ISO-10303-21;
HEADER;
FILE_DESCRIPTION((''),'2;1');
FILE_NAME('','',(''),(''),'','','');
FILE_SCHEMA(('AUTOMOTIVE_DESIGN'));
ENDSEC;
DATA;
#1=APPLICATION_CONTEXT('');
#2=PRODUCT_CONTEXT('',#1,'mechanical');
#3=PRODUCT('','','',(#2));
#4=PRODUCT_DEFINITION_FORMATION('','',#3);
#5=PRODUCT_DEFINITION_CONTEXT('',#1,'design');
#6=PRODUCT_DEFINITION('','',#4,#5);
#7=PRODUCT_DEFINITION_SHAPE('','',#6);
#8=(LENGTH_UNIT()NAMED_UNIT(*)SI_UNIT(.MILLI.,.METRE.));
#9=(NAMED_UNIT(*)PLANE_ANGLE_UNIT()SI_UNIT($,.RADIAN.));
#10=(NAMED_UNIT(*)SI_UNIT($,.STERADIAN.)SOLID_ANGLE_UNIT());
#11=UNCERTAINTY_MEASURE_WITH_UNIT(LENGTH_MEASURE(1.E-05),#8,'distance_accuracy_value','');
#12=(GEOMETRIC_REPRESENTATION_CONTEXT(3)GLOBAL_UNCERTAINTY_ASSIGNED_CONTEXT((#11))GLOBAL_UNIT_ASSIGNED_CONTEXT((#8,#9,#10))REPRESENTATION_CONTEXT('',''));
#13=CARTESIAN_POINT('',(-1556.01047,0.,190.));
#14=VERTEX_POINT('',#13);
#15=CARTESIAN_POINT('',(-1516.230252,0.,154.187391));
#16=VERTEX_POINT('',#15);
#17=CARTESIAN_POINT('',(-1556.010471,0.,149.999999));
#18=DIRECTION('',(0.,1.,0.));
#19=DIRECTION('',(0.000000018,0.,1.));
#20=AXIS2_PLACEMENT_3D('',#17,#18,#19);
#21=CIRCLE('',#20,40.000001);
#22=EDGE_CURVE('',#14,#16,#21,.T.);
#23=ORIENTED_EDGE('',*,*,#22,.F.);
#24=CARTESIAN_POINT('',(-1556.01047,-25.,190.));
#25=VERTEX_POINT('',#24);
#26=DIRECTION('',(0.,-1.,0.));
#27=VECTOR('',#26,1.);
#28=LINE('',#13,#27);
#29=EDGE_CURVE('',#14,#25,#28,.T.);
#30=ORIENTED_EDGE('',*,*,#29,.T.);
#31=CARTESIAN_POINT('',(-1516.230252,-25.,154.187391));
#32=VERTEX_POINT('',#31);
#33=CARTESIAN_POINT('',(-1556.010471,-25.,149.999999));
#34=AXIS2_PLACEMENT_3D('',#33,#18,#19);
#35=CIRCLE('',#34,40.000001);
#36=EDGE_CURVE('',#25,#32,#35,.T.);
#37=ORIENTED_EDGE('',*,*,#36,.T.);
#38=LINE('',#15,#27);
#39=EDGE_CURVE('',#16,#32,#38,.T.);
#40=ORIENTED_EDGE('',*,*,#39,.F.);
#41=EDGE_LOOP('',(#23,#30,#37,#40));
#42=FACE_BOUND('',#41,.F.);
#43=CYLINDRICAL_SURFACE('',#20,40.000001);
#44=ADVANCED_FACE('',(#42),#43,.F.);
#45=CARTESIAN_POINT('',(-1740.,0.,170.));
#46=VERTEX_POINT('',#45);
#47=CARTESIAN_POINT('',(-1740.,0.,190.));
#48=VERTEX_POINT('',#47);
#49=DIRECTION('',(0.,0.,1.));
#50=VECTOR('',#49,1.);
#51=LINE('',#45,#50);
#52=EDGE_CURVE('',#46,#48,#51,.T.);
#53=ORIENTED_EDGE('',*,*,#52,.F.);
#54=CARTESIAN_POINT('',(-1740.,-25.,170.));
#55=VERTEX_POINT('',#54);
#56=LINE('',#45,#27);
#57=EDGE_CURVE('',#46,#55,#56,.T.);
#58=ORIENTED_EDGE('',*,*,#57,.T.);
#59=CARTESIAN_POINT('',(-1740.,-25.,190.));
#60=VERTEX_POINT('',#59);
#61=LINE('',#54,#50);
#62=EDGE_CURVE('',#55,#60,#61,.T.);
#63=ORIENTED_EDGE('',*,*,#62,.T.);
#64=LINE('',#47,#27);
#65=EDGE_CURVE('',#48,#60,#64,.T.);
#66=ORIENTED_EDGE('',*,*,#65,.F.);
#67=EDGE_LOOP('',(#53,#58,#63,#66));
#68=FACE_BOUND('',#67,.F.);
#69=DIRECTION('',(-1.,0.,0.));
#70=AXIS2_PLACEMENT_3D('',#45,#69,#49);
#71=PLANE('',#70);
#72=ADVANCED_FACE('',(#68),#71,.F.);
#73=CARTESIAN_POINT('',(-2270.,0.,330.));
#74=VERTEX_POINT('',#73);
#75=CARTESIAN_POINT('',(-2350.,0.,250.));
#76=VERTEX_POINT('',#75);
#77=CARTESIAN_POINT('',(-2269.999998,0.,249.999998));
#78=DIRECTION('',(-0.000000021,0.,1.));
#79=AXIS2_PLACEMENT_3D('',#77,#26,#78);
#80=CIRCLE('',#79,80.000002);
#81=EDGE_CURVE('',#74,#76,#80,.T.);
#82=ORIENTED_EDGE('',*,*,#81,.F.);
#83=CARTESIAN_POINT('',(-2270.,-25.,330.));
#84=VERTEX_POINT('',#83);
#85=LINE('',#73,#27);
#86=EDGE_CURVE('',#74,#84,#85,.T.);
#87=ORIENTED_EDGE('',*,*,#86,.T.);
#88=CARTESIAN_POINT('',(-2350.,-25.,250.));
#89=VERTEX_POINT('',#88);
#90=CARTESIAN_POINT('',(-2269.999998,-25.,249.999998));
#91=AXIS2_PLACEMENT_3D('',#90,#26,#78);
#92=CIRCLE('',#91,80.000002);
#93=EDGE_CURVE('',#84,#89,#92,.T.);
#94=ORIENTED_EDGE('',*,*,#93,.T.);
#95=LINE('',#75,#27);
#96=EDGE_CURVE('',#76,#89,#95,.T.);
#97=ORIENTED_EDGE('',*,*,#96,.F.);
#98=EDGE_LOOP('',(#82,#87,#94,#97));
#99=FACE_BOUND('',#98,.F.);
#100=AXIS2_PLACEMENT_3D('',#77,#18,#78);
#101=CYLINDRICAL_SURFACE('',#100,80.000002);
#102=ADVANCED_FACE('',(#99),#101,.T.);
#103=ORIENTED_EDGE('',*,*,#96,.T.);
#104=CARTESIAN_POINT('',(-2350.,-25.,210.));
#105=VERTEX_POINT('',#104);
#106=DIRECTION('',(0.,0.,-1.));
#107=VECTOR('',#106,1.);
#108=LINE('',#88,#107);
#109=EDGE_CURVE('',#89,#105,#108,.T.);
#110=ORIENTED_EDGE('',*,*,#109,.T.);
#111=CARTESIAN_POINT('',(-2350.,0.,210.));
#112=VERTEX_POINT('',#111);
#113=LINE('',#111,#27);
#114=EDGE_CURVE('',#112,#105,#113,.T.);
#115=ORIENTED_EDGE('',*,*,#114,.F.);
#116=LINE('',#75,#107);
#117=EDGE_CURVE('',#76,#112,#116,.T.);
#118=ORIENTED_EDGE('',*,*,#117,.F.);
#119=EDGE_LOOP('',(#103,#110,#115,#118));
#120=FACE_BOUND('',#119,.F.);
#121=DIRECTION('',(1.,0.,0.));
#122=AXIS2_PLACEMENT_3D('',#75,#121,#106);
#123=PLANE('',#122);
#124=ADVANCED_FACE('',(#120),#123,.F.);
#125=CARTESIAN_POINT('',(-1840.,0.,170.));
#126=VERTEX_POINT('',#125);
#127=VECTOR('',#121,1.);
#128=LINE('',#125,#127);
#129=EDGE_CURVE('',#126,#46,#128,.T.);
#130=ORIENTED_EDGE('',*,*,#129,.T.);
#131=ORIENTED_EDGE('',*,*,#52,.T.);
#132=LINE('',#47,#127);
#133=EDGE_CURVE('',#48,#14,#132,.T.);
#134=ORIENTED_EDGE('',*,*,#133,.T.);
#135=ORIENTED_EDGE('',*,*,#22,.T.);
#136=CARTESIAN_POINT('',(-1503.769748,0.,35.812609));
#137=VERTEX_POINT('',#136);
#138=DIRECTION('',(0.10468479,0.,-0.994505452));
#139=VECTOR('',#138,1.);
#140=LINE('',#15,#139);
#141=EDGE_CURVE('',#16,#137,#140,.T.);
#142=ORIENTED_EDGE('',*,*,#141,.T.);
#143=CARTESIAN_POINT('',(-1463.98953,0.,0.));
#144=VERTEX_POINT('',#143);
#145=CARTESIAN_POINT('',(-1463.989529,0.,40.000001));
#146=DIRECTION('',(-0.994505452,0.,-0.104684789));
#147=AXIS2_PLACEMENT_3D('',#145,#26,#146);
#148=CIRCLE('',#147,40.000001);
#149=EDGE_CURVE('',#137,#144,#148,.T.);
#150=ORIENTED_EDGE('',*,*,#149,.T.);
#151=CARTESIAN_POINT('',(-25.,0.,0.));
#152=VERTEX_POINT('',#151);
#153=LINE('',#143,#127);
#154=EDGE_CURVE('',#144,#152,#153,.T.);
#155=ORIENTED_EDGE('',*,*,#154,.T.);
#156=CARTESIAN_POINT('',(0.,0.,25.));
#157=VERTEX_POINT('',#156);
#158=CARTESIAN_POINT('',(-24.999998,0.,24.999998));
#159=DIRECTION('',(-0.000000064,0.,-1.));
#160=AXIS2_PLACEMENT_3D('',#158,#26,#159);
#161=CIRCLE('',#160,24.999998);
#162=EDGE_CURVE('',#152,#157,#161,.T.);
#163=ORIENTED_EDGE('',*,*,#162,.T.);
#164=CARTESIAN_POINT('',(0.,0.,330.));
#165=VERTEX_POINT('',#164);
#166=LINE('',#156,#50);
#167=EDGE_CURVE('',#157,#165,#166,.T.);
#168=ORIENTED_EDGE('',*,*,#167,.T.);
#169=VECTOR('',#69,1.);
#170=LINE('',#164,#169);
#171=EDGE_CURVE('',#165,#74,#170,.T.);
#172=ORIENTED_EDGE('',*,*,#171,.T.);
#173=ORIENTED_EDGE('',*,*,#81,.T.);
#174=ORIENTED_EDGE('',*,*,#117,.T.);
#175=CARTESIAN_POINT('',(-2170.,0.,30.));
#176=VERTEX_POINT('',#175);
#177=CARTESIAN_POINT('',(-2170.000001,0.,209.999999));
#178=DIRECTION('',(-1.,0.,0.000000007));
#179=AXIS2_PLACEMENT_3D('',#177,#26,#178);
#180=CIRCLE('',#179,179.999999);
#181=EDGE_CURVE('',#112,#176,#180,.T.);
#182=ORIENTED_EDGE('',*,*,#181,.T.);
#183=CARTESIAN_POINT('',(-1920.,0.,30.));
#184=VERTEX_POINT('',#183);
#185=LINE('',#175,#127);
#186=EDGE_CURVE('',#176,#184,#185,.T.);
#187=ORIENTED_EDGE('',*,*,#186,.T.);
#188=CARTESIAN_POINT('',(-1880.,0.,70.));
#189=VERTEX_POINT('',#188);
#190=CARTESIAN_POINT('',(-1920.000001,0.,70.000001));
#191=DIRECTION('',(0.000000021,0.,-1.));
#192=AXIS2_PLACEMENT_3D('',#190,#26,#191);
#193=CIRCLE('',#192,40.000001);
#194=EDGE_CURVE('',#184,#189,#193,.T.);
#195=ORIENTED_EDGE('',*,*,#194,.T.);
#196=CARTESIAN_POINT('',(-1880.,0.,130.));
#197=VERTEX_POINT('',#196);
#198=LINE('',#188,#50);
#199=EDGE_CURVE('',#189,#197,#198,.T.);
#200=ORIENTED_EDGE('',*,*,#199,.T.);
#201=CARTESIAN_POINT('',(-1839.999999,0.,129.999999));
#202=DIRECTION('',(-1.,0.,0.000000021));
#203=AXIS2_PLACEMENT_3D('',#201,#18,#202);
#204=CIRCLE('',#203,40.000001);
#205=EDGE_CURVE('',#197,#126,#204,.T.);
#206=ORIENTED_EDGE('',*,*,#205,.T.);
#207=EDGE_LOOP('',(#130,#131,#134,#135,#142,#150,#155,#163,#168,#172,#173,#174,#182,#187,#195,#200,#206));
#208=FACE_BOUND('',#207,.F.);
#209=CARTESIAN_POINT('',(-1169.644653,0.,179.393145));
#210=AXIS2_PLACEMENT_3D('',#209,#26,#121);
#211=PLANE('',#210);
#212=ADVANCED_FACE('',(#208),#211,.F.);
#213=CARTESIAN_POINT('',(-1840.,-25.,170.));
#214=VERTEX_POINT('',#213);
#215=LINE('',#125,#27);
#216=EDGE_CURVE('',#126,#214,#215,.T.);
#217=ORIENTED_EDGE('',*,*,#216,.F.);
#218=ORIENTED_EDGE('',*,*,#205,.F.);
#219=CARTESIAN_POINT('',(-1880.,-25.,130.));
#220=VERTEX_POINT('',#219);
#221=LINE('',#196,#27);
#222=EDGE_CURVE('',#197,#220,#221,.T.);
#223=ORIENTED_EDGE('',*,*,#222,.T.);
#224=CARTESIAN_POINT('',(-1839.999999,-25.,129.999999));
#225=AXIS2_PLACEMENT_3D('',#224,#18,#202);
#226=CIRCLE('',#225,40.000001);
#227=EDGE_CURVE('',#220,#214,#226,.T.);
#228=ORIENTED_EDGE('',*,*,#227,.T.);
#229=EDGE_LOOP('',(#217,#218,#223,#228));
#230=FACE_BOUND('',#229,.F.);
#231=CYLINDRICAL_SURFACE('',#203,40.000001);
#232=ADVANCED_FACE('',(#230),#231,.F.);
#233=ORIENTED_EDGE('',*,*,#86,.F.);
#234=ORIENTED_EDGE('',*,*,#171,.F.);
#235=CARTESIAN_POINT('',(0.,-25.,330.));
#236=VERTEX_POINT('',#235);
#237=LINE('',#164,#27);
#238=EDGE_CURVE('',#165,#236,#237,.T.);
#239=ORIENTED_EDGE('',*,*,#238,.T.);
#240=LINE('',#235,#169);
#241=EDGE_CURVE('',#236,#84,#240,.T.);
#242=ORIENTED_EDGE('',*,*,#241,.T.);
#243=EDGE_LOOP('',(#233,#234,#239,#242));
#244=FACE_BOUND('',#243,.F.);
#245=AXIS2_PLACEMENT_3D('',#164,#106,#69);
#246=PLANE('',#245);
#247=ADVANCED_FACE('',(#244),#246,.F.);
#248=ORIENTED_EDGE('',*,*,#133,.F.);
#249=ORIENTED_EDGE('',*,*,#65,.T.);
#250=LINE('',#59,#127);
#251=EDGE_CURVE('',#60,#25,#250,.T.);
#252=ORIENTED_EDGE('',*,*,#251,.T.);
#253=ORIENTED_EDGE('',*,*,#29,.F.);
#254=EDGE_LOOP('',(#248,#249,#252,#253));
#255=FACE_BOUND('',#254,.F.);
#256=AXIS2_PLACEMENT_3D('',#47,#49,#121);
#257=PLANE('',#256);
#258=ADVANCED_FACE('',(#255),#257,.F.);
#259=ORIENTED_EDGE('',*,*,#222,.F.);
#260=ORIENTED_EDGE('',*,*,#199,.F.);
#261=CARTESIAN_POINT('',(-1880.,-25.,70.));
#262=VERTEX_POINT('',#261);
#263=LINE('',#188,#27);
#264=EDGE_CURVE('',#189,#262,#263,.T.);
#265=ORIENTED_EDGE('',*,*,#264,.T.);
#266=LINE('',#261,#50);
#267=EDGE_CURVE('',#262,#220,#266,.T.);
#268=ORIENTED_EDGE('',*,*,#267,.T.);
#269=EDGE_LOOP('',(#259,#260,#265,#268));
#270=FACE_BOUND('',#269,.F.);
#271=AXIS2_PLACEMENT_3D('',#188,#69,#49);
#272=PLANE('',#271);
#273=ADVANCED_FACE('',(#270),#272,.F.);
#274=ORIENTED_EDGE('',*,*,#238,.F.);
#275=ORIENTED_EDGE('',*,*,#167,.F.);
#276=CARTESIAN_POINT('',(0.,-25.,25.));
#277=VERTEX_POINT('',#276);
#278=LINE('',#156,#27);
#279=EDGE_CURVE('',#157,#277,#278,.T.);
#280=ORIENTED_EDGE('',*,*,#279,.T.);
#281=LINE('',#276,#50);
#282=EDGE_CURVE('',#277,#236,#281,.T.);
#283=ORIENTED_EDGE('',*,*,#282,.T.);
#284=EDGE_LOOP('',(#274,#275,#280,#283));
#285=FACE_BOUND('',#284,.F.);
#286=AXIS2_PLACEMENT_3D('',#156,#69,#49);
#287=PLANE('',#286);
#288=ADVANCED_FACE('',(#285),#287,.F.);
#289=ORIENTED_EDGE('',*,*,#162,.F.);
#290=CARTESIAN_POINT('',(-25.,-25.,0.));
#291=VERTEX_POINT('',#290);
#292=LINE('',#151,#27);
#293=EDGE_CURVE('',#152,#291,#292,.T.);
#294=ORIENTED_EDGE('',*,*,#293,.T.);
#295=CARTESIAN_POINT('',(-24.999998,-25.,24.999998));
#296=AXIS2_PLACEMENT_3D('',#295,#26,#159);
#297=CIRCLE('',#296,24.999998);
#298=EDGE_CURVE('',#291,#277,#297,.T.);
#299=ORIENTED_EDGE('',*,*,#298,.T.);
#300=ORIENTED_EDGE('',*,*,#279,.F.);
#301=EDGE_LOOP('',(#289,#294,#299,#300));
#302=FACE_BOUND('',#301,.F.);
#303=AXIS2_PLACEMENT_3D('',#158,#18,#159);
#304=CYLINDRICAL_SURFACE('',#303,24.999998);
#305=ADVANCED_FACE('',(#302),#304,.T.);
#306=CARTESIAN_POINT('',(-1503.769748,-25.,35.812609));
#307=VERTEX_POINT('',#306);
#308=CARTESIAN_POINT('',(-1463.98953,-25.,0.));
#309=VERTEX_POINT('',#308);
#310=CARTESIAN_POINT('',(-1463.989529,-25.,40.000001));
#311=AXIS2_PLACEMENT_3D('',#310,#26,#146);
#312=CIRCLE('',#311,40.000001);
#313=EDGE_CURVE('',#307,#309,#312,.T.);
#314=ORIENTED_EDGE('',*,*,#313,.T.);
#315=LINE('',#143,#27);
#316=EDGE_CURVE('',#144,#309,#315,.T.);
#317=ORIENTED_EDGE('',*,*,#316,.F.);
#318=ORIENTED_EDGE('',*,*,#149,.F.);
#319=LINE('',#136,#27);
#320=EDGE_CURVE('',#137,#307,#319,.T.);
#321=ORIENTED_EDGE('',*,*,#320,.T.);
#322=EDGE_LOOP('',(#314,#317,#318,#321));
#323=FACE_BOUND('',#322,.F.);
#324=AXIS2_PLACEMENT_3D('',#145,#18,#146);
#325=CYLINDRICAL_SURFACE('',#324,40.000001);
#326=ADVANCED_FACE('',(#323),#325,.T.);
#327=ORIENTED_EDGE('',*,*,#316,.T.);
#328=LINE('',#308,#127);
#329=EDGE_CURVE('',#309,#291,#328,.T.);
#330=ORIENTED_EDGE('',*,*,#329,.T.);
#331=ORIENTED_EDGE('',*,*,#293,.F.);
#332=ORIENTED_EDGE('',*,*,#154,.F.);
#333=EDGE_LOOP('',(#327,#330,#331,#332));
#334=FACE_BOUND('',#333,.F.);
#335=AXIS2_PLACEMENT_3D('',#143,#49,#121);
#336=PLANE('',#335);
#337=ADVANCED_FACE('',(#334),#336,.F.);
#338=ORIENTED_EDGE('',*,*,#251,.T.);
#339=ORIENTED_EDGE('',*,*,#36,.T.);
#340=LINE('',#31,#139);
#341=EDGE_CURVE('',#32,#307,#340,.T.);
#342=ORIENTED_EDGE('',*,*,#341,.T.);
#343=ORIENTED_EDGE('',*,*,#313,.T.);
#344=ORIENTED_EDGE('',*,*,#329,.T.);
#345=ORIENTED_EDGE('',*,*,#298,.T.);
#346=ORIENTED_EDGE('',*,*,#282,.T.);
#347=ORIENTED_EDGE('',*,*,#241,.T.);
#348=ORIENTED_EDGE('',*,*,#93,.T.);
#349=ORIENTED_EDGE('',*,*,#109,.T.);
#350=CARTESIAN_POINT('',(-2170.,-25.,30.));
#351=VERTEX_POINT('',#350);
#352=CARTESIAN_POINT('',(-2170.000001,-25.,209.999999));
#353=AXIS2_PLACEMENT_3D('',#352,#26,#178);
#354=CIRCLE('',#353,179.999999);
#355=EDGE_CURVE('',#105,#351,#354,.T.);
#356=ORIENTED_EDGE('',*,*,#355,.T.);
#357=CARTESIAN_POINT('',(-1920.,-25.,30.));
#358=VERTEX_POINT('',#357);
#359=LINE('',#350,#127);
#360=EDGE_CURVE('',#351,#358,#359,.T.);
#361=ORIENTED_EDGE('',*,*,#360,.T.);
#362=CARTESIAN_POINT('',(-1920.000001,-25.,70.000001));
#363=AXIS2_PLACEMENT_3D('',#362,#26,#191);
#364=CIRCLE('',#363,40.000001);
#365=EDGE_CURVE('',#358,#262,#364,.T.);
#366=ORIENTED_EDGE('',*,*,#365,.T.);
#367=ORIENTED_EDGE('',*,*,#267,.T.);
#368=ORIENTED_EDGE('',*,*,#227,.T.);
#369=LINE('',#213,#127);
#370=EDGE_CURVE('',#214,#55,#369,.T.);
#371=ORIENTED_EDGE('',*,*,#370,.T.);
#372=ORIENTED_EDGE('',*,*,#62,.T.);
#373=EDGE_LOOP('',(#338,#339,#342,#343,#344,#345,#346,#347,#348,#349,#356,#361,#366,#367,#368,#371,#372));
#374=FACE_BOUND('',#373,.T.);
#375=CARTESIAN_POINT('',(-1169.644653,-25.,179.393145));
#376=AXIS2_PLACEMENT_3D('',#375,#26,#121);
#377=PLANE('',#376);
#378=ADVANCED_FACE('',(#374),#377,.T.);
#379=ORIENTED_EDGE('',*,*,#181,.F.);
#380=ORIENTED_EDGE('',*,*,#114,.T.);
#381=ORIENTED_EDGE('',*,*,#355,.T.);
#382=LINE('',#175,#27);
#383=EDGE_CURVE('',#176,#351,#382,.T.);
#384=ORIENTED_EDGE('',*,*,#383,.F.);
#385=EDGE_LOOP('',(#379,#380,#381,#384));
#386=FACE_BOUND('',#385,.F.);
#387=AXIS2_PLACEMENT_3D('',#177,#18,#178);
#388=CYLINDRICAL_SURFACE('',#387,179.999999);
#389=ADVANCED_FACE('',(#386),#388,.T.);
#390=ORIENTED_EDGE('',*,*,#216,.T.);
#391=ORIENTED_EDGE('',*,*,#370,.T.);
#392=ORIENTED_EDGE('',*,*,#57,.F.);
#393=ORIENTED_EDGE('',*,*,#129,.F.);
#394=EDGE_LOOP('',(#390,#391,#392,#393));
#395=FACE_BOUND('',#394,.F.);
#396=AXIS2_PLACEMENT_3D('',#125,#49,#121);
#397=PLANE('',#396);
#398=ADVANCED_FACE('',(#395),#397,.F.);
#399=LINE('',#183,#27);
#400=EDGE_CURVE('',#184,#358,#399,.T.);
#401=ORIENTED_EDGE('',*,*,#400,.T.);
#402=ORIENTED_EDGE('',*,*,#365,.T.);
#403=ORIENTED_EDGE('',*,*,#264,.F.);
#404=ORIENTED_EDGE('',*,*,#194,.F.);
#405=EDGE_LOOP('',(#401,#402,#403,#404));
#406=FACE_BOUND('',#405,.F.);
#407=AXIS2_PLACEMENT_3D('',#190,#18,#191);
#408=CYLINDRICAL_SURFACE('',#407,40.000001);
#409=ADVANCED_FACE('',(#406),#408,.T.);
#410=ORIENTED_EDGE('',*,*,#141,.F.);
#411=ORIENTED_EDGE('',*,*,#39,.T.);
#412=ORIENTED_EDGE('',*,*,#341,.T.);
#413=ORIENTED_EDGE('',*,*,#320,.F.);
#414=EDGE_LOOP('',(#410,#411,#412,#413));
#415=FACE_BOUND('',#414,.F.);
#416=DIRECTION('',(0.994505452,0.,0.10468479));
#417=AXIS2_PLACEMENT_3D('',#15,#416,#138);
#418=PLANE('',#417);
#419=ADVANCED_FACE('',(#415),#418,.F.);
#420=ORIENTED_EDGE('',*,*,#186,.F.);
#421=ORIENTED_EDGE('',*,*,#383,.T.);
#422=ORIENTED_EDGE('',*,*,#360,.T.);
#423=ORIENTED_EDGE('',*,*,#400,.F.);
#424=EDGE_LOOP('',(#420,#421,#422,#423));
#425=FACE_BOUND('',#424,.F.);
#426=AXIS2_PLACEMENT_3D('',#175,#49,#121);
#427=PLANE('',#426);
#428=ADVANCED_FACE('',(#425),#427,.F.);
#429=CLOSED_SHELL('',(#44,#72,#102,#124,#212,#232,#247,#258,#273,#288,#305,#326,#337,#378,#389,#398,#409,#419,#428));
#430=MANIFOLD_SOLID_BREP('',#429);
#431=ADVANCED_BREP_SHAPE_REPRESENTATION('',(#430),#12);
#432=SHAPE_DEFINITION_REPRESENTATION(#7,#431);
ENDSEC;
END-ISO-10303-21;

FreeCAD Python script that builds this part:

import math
import FreeCAD as App
import Part
import Sketcher
from FreeCAD import Vector

doc = App.newDocument("Part")
params = doc.addObject("Spreadsheet::Sheet", "Params")
for row, (alias, value) in enumerate([
    ("sketch1_radius", "80.000002 mm"),
    ("sketch1_radius2", "179.999999 mm"),
    ("sketch1_radius3", "40.000001 mm"),
    ("sketch1_radius4", "24.999998 mm"),
    ("sketch1_width", "2270 mm"),
    ("pad1_length", "25 mm"),
], start=1):
    params.set(f"A{row}", alias)
    params.set(f"B{row}", "=" + value)
    params.setAlias(f"B{row}", alias)

body = doc.addObject("PartDesign::Body", "Body")

sketch1 = doc.addObject("Sketcher::SketchObject", "Sketch")
body.addObject(sketch1)
sketch1.AttachmentSupport = (doc.XZ_Plane, [""])
sketch1.MapMode = "FlatFace"
sketch1.addGeometry(Part.LineSegment(Vector(0, 25, 0), Vector(0, 330, 0)), False)
sketch1.addGeometry(Part.LineSegment(Vector(0, 330, 0), Vector(-2270, 330, 0)), False)
sketch1.addGeometry(Part.ArcOfCircle(Part.Circle(Vector(-2270, 250, 0), Vector(0, 0, 1), 80), math.radians(90), math.radians(180)), False)
sketch1.addGeometry(Part.LineSegment(Vector(-2350, 250, 0), Vector(-2350, 210, 0)), False)
sketch1.addGeometry(Part.ArcOfCircle(Part.Circle(Vector(-2170, 210, 0), Vector(0, 0, 1), 180), math.radians(180), math.radians(270)), False)
sketch1.addGeometry(Part.LineSegment(Vector(-2170, 30, 0), Vector(-1920, 30, 0)), False)
sketch1.addGeometry(Part.ArcOfCircle(Part.Circle(Vector(-1920, 70, 0), Vector(0, 0, 1), 40), math.radians(-90), math.radians(0)), False)
sketch1.addGeometry(Part.LineSegment(Vector(-1880, 70, 0), Vector(-1880, 130, 0)), False)
sketch1.addGeometry(Part.ArcOfCircle(Part.Circle(Vector(-1840, 130, 0), Vector(0, 0, 1), 40), math.radians(90), math.radians(180)), False)
sketch1.addGeometry(Part.LineSegment(Vector(-1840, 170, 0), Vector(-1740, 170, 0)), False)
sketch1.addGeometry(Part.LineSegment(Vector(-1740, 170, 0), Vector(-1740, 190, 0)), False)
sketch1.addGeometry(Part.LineSegment(Vector(-1740, 190, 0), Vector(-1556, 190, 0)), False)
sketch1.addGeometry(Part.ArcOfCircle(Part.Circle(Vector(-1556, 150, 0), Vector(0, 0, 1), 40), math.radians(6), math.radians(90)), False)
sketch1.addGeometry(Part.LineSegment(Vector(-1516, 154, 0), Vector(-1504, 36, 0)), False)
sketch1.addGeometry(Part.ArcOfCircle(Part.Circle(Vector(-1464, 40, 0), Vector(0, 0, 1), 40), math.radians(-174), math.radians(-90)), False)
sketch1.addGeometry(Part.LineSegment(Vector(-1464, 0, 0), Vector(-25, 0, 0)), False)
sketch1.addGeometry(Part.ArcOfCircle(Part.Circle(Vector(-25, 25, 0), Vector(0, 0, 1), 25), math.radians(-90), math.radians(0)), False)
sketch1.addConstraint(Sketcher.Constraint("Coincident", 0, 2, 1, 1))
sketch1.addConstraint(Sketcher.Constraint("Tangent", 1, 2, 2, 1))
sketch1.addConstraint(Sketcher.Constraint("Tangent", 2, 2, 3, 1))
sketch1.addConstraint(Sketcher.Constraint("Tangent", 3, 2, 4, 1))
sketch1.addConstraint(Sketcher.Constraint("Tangent", 4, 2, 5, 1))
sketch1.addConstraint(Sketcher.Constraint("Tangent", 5, 2, 6, 1))
sketch1.addConstraint(Sketcher.Constraint("Tangent", 6, 2, 7, 1))
sketch1.addConstraint(Sketcher.Constraint("Tangent", 7, 2, 8, 2))
sketch1.addConstraint(Sketcher.Constraint("Tangent", 8, 1, 9, 1))
sketch1.addConstraint(Sketcher.Constraint("Coincident", 9, 2, 10, 1))
sketch1.addConstraint(Sketcher.Constraint("Coincident", 10, 2, 11, 1))
sketch1.addConstraint(Sketcher.Constraint("Tangent", 11, 2, 12, 2))
sketch1.addConstraint(Sketcher.Constraint("Tangent", 12, 1, 13, 1))
sketch1.addConstraint(Sketcher.Constraint("Tangent", 13, 2, 14, 1))
sketch1.addConstraint(Sketcher.Constraint("Tangent", 14, 2, 15, 1))
sketch1.addConstraint(Sketcher.Constraint("Tangent", 15, 2, 16, 1))
sketch1.addConstraint(Sketcher.Constraint("Tangent", 16, 2, 0, 1))
sketch1.addConstraint(Sketcher.Constraint("Vertical", 0))
sketch1.addConstraint(Sketcher.Constraint("Horizontal", 1))
sketch1.addConstraint(Sketcher.Constraint("Vertical", 3))
sketch1.addConstraint(Sketcher.Constraint("Horizontal", 5))
sketch1.addConstraint(Sketcher.Constraint("Vertical", 7))
sketch1.addConstraint(Sketcher.Constraint("Horizontal", 9))
sketch1.addConstraint(Sketcher.Constraint("Vertical", 10))
sketch1.addConstraint(Sketcher.Constraint("Horizontal", 11))
sketch1.addConstraint(Sketcher.Constraint("Horizontal", 15))
sketch1.addConstraint(Sketcher.Constraint("Equal", 6, 8))
sketch1.addConstraint(Sketcher.Constraint("Equal", 8, 12))
sketch1.addConstraint(Sketcher.Constraint("Equal", 12, 14))
sketch1.addConstraint(Sketcher.Constraint("PointOnObject", 0, 2, -2))
sketch1.addConstraint(Sketcher.Constraint("PointOnObject", 14, 2, -1))
sketch1.addConstraint(Sketcher.Constraint("Radius", 2, 80.000002))
sketch1.addConstraint(Sketcher.Constraint("Radius", 4, 179.999999))
sketch1.addConstraint(Sketcher.Constraint("Radius", 6, 40.000001))
sketch1.addConstraint(Sketcher.Constraint("Radius", 16, 24.999998))
sketch1.addConstraint(Sketcher.Constraint("DistanceX", 1, 2, 1, 1, 2270.0))
sketch1.addConstraint(Sketcher.Constraint("DistanceX", 5, 1, 5, 2, 250.0))
sketch1.addConstraint(Sketcher.Constraint("DistanceX", 9, 1, 9, 2, 100.0))
sketch1.addConstraint(Sketcher.Constraint("DistanceY", 0, 1, 0, 2, 305.0))
sketch1.addConstraint(Sketcher.Constraint("DistanceY", 3, 2, 3, 1, 40.0))
sketch1.addConstraint(Sketcher.Constraint("DistanceY", 7, 1, 7, 2, 60.0))
sketch1.addConstraint(Sketcher.Constraint("DistanceY", 10, 1, 10, 2, 20.0))
sketch1.addConstraint(Sketcher.Constraint("DistanceX", 11, 1, 11, 2, 183.98953))
sketch1.addConstraint(Sketcher.Constraint("DistanceX", 15, 1, 15, 2, 1438.98953))
sketch1.setExpression("Constraints[31]", "Params.sketch1_radius")
sketch1.setExpression("Constraints[32]", "Params.sketch1_radius2")
sketch1.setExpression("Constraints[33]", "Params.sketch1_radius3")
sketch1.setExpression("Constraints[34]", "Params.sketch1_radius4")
sketch1.setExpression("Constraints[35]", "Params.sketch1_width")
pad1 = doc.addObject("PartDesign::Pad", "Pad")
body.addObject(pad1)
pad1.Profile = sketch1
pad1.setExpression("Length", "Params.pad1_length")

doc.recompute()
